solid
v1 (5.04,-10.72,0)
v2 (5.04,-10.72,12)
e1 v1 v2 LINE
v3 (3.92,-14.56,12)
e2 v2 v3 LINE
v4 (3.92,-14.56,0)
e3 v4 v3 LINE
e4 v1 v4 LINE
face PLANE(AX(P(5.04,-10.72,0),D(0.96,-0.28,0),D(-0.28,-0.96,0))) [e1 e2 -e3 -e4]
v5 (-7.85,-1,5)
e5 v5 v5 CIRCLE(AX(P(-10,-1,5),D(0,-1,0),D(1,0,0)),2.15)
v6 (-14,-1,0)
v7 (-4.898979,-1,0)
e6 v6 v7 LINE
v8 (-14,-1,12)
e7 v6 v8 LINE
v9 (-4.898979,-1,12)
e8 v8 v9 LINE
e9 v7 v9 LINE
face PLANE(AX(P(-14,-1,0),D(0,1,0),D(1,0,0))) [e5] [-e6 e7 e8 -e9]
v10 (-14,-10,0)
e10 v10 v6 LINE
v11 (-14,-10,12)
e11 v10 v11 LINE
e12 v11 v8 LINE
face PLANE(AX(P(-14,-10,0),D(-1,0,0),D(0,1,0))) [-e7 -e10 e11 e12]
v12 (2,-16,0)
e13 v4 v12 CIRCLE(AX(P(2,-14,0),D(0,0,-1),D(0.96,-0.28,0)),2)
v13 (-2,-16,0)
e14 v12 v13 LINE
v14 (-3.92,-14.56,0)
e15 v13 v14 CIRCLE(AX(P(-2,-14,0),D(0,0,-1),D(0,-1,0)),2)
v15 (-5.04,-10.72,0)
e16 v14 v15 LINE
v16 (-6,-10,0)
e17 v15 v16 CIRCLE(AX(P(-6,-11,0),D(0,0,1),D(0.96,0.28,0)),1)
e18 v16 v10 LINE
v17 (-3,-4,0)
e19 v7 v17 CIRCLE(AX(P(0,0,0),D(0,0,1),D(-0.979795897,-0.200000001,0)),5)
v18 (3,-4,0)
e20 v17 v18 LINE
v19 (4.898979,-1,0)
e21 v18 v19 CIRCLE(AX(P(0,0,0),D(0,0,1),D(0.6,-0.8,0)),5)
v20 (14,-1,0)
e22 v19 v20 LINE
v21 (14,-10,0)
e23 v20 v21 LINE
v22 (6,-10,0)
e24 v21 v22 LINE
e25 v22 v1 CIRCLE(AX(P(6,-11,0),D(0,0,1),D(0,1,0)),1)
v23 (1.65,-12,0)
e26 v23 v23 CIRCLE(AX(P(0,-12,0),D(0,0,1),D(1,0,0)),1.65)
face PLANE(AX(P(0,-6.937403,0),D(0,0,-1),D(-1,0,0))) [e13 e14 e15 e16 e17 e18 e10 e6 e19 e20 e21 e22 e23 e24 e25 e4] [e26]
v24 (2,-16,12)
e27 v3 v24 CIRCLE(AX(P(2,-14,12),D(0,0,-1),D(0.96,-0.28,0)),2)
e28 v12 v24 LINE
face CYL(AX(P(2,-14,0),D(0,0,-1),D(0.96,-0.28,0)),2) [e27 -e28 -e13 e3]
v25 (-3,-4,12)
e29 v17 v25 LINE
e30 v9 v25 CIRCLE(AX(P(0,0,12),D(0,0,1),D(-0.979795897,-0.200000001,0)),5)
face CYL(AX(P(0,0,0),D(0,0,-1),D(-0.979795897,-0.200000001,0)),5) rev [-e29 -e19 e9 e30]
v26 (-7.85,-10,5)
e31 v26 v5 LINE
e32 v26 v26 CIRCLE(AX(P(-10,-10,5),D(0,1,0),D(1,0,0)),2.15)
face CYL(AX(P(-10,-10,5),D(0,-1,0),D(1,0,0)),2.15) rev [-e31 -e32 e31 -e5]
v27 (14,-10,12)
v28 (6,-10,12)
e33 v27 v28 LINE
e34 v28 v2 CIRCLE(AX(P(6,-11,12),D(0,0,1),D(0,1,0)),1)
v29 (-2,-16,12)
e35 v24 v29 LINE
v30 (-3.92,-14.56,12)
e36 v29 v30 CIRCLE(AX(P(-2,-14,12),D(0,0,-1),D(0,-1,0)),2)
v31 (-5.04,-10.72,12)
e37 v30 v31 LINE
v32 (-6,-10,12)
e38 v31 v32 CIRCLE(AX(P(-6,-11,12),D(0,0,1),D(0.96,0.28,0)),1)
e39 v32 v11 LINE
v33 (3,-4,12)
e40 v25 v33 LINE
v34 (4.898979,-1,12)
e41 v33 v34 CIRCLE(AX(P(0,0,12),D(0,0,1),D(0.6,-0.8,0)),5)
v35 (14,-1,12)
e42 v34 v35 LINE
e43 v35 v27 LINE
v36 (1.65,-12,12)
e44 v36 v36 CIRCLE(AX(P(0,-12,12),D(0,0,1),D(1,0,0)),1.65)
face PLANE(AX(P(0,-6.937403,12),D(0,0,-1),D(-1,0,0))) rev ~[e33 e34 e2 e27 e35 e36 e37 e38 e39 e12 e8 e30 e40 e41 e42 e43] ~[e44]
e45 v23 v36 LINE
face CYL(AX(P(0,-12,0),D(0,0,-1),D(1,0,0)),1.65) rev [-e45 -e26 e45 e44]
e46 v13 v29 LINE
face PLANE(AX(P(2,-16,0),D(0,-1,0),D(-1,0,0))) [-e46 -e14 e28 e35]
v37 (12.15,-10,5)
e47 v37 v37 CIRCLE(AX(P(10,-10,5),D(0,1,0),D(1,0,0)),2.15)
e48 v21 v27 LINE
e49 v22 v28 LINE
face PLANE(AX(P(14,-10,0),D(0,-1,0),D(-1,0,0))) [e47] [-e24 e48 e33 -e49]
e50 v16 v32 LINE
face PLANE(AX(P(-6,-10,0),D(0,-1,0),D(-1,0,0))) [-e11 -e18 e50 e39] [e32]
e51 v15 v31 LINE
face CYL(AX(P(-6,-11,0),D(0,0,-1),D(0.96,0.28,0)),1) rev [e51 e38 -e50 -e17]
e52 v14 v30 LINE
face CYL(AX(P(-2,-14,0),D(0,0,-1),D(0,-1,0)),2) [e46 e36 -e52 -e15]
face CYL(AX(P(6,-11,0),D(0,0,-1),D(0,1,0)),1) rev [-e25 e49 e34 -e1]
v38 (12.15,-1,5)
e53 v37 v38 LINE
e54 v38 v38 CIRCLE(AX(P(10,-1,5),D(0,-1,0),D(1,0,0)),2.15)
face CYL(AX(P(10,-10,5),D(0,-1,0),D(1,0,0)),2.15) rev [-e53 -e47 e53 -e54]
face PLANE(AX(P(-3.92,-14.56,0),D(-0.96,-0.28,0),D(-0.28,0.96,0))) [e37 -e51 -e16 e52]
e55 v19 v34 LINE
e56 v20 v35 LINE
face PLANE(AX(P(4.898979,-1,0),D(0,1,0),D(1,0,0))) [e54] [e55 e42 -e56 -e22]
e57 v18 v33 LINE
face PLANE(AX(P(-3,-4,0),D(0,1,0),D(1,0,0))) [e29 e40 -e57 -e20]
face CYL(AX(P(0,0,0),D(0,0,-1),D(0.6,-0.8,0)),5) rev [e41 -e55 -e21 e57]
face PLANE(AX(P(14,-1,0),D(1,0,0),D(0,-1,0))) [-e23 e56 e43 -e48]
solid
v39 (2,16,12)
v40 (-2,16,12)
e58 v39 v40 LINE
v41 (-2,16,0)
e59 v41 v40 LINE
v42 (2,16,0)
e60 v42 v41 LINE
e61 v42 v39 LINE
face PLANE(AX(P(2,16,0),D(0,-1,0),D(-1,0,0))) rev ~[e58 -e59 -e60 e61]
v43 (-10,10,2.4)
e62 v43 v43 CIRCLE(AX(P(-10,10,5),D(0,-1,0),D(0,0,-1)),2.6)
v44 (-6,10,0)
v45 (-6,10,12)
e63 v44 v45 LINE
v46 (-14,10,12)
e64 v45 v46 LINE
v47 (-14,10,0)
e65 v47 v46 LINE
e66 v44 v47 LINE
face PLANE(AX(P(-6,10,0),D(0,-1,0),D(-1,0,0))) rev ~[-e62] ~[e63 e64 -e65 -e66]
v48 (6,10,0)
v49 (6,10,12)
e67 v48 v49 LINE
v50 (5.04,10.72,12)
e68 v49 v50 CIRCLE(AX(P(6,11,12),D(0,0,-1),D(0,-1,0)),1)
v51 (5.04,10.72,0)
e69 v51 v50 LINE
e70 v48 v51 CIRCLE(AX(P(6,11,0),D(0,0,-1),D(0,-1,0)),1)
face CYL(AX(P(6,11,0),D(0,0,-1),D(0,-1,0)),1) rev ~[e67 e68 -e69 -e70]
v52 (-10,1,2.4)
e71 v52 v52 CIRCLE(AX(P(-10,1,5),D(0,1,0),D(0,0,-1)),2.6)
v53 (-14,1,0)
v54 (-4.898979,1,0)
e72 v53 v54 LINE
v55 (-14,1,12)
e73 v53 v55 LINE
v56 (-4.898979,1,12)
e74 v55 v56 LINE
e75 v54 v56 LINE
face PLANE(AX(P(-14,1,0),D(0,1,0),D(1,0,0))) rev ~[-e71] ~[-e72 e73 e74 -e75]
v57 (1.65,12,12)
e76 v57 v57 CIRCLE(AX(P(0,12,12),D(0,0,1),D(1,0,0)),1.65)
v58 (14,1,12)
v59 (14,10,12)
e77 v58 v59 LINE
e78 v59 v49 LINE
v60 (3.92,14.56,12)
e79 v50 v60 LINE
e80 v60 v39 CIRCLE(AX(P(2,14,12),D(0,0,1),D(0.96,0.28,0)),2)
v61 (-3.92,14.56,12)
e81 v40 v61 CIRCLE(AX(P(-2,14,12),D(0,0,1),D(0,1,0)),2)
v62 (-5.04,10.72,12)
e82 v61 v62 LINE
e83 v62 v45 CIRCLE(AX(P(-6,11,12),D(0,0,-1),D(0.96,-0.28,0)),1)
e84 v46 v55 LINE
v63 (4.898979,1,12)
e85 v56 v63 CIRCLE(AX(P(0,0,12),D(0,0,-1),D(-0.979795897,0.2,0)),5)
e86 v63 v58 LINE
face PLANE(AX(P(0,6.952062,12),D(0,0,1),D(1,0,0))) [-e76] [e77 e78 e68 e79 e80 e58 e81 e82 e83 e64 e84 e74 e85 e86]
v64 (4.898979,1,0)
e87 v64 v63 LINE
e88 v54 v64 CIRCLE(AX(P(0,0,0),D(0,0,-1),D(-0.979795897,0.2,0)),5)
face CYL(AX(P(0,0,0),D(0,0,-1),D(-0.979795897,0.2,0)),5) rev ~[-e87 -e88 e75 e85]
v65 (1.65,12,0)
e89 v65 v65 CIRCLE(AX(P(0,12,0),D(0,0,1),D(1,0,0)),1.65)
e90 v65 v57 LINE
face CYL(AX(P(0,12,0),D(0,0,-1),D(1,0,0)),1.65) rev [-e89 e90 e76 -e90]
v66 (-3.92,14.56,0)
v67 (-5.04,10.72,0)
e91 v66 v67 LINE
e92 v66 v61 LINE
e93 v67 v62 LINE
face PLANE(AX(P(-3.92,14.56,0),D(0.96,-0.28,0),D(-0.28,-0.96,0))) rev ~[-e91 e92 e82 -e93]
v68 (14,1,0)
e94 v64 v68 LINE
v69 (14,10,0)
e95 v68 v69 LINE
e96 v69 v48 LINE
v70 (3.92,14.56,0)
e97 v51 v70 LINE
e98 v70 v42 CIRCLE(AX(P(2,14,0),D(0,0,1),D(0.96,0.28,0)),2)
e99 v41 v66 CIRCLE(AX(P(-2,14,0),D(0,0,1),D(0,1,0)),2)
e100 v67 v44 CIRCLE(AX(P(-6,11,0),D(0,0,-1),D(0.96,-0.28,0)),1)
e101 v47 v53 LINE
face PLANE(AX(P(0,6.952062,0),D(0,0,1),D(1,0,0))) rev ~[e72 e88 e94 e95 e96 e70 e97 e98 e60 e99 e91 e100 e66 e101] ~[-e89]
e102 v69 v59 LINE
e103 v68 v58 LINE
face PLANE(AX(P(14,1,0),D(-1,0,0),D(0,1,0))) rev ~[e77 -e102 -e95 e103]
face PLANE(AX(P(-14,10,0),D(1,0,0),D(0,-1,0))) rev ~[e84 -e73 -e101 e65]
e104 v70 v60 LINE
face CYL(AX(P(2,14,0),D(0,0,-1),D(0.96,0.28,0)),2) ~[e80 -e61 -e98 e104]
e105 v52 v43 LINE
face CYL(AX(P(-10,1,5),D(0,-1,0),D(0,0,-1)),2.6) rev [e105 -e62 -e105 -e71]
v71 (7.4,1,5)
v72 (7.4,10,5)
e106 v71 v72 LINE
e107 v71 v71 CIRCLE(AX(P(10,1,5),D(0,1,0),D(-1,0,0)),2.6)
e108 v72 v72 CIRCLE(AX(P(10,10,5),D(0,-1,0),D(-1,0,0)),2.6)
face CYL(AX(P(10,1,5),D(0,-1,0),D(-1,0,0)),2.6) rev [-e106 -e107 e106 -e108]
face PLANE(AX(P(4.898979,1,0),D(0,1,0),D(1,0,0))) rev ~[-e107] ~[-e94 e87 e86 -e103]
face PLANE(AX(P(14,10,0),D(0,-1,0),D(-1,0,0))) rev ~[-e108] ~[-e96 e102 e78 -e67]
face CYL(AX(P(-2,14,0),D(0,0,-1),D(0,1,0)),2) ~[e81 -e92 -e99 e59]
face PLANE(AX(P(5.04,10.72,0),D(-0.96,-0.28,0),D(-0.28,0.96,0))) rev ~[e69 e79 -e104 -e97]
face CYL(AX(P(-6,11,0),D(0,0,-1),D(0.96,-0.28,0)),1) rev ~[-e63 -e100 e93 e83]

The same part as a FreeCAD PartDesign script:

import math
import FreeCAD as App
import Part
import Sketcher

V = App.Vector

doc = App.newDocument("Part")
body = doc.addObject("PartDesign::Body", "Body")

# Sketch on XY plane
sketch1 = body.newObject("Sketcher::SketchObject", "Sketch")
sketch1.AttachmentSupport = (doc.getObject("XY_Plane"), [""])
sketch1.MapMode = "FlatFace"
sketch1.addGeometry([
    Part.LineSegment(V(3, -4, 0), V(-3, -4, 0)),  # 0
    Part.ArcOfCircle(Part.Circle(V(0, 0, 0), V(0, 0, 1), 5), math.radians(-168), math.radians(-127)),  # 1
    Part.LineSegment(V(-4.9, -1, 0), V(-14, -1, 0)),  # 2
    Part.LineSegment(V(-14, -1, 0), V(-14, -10, 0)),  # 3
    Part.LineSegment(V(-14, -10, 0), V(-6, -10, 0)),  # 4
    Part.ArcOfCircle(Part.Circle(V(-6, -11, 0), V(0, 0, 1), 1), math.radians(16), math.radians(90)),  # 5
    Part.LineSegment(V(-5, -10.7, 0), V(-3.9, -14.6, 0)),  # 6
    Part.ArcOfCircle(Part.Circle(V(-2, -14, 0), V(0, 0, 1), 2), math.radians(-164), math.radians(-90)),  # 7
    Part.LineSegment(V(-2, -16, 0), V(2, -16, 0)),  # 8
    Part.ArcOfCircle(Part.Circle(V(2, -14, 0), V(0, 0, 1), 2), math.radians(-90), math.radians(-16)),  # 9
    Part.LineSegment(V(3.9, -14.6, 0), V(5, -10.7, 0)),  # 10
    Part.ArcOfCircle(Part.Circle(V(6, -11, 0), V(0, 0, 1), 1), math.radians(90), math.radians(164)),  # 11
    Part.LineSegment(V(6, -10, 0), V(14, -10, 0)),  # 12
    Part.LineSegment(V(14, -10, 0), V(14, -1, 0)),  # 13
    Part.LineSegment(V(14, -1, 0), V(4.9, -1, 0)),  # 14
    Part.ArcOfCircle(Part.Circle(V(0, 0, 0), V(0, 0, 1), 5), math.radians(-53), math.radians(-12)),  # 15
    Part.Circle(V(0, -12, 0), V(0, 0, 1), 1.6),  # 16
], False)
sketch1.addConstraint([
    Sketcher.Constraint("Coincident", 0, 2, 1, 2),
    Sketcher.Constraint("Coincident", 1, 1, 2, 1),
    Sketcher.Constraint("Coincident", 2, 2, 3, 1),
    Sketcher.Constraint("Coincident", 3, 2, 4, 1),
    Sketcher.Constraint("Tangent", 4, 2, 5, 2),
    Sketcher.Constraint("Tangent", 5, 1, 6, 1),
    Sketcher.Constraint("Tangent", 6, 2, 7, 1),
    Sketcher.Constraint("Tangent", 7, 2, 8, 1),
    Sketcher.Constraint("Tangent", 8, 2, 9, 1),
    Sketcher.Constraint("Tangent", 9, 2, 10, 1),
    Sketcher.Constraint("Tangent", 10, 2, 11, 2),
    Sketcher.Constraint("Tangent", 11, 1, 12, 1),
    Sketcher.Constraint("Coincident", 12, 2, 13, 1),
    Sketcher.Constraint("Coincident", 13, 2, 14, 1),
    Sketcher.Constraint("Coincident", 14, 2, 15, 2),
    Sketcher.Constraint("Coincident", 15, 1, 0, 1),
    Sketcher.Constraint("Horizontal", 0),
    Sketcher.Constraint("Horizontal", 2),
    Sketcher.Constraint("Vertical", 3),
    Sketcher.Constraint("Horizontal", 4),
    Sketcher.Constraint("Horizontal", 8),
    Sketcher.Constraint("Horizontal", 12),
    Sketcher.Constraint("Vertical", 13),
    Sketcher.Constraint("Horizontal", 14),
    Sketcher.Constraint("Coincident", 1, 3, -1, 1),
    Sketcher.Constraint("Coincident", 15, 3, -1, 1),
    Sketcher.Constraint("Equal", 7, 9),
    Sketcher.Constraint("Equal", 5, 11),
    Sketcher.Constraint("Equal", 1, 15),
    Sketcher.Constraint("Symmetric", 5, 3, 11, 3, -2),
    Sketcher.Constraint("Symmetric", 2, 2, 13, 2, -2),
    Sketcher.Constraint("PointOnObject", 16, 3, -2),
    Sketcher.Constraint("Horizontal", 6, 2, 9, 2),
    Sketcher.Constraint("Radius", 1, 5.0),
    Sketcher.Constraint("Radius", 5, 1.0),
    Sketcher.Constraint("Radius", 7, 2.0),
    Sketcher.Constraint("Diameter", 16, 3.3),
    Sketcher.Constraint("DistanceX", 0, 2, 0, 1, 6.0),
    Sketcher.Constraint("DistanceX", 4, 1, 4, 2, 8.0),
    Sketcher.Constraint("DistanceX", 8, 1, 8, 2, 4.0),
    Sketcher.Constraint("DistanceY", 3, 2, 3, 1, 9.0),
    Sketcher.Constraint("Distance", 6, 4.0),
    Sketcher.Constraint("DistanceX", 5, 3, -1, 1, 6.0),
    Sketcher.Constraint("DistanceY", 5, 3, -1, 1, 11.0),
    Sketcher.Constraint("DistanceY", 16, 3, -1, 1, 12.0),
])
pad1 = body.newObject("PartDesign::Pad", "Pad")
pad1.Profile = sketch1
pad1.Length = 12

# Sketch on XZ plane
sketch2 = body.newObject("Sketcher::SketchObject", "Sketch001")
sketch2.AttachmentSupport = (doc.getObject("XZ_Plane"), [""])
sketch2.MapMode = "FlatFace"
sketch2.AttachmentOffset = App.Placement(V(0, 0, 10), App.Rotation())
sketch2.addGeometry([
    Part.Circle(V(10, 5, 0), V(0, 0, 1), 2.1),
    Part.Circle(V(-10, 5, 0), V(0, 0, 1), 2.1),
], False)
sketch2.addConstraint([
    Sketcher.Constraint("Equal", 0, 1),
    Sketcher.Constraint("Symmetric", 0, 3, 1, 3, -2),
    Sketcher.Constraint("Diameter", 0, 4.3),
    Sketcher.Constraint("DistanceX", -1, 1, 0, 3, 10.0),
    Sketcher.Constraint("DistanceY", -1, 1, 0, 3, 5.0),
])
pocket1 = body.newObject("PartDesign::Pocket", "Pocket")
pocket1.Profile = sketch2
pocket1.Type = "ThroughAll"
body2 = doc.addObject("PartDesign::Body", "Body001")

# Sketch on XY plane
sketch3 = body2.newObject("Sketcher::SketchObject", "Sketch002")
sketch3.AttachmentSupport = (doc.getObject("XY_Plane001"), [""])
sketch3.MapMode = "FlatFace"
sketch3.addGeometry([
    Part.LineSegment(V(-3.9, 14.6, 0), V(-5, 10.7, 0)),  # 0
    Part.ArcOfCircle(Part.Circle(V(-6, 11, 0), V(0, 0, 1), 1), math.radians(-90), math.radians(-16)),  # 1
    Part.LineSegment(V(-6, 10, 0), V(-14, 10, 0)),  # 2
    Part.LineSegment(V(-14, 10, 0), V(-14, 1, 0)),  # 3
    Part.LineSegment(V(-14, 1, 0), V(-4.9, 1, 0)),  # 4
    Part.ArcOfCircle(Part.Circle(V(0, 0, 0), V(0, 0, 1), 5), math.radians(12), math.radians(168)),  # 5
    Part.LineSegment(V(4.9, 1, 0), V(14, 1, 0)),  # 6
    Part.LineSegment(V(14, 1, 0), V(14, 10, 0)),  # 7
    Part.LineSegment(V(14, 10, 0), V(6, 10, 0)),  # 8
    Part.ArcOfCircle(Part.Circle(V(6, 11, 0), V(0, 0, 1), 1), math.radians(-164), math.radians(-90)),  # 9
    Part.LineSegment(V(5, 10.7, 0), V(3.9, 14.6, 0)),  # 10
    Part.ArcOfCircle(Part.Circle(V(2, 14, 0), V(0, 0, 1), 2), math.radians(16), math.radians(90)),  # 11
    Part.LineSegment(V(2, 16, 0), V(-2, 16, 0)),  # 12
    Part.ArcOfCircle(Part.Circle(V(-2, 14, 0), V(0, 0, 1), 2), math.radians(90), math.radians(164)),  # 13
    Part.Circle(V(0, 12, 0), V(0, 0, 1), 1.6),  # 14
], False)
sketch3.addConstraint([
    Sketcher.Constraint("Tangent", 0, 2, 1, 2),
    Sketcher.Constraint("Tangent", 1, 1, 2, 1),
    Sketcher.Constraint("Coincident", 2, 2, 3, 1),
    Sketcher.Constraint("Coincident", 3, 2, 4, 1),
    Sketcher.Constraint("Coincident", 4, 2, 5, 2),
    Sketcher.Constraint("Coincident", 5, 1, 6, 1),
    Sketcher.Constraint("Coincident", 6, 2, 7, 1),
    Sketcher.Constraint("Coincident", 7, 2, 8, 1),
    Sketcher.Constraint("Tangent", 8, 2, 9, 2),
    Sketcher.Constraint("Tangent", 9, 1, 10, 1),
    Sketcher.Constraint("Tangent", 10, 2, 11, 1),
    Sketcher.Constraint("Tangent", 11, 2, 12, 1),
    Sketcher.Constraint("Tangent", 12, 2, 13, 1),
    Sketcher.Constraint("Tangent", 13, 2, 0, 1),
    Sketcher.Constraint("Horizontal", 2),
    Sketcher.Constraint("Vertical", 3),
    Sketcher.Constraint("Horizontal", 4),
    Sketcher.Constraint("Horizontal", 6),
    Sketcher.Constraint("Vertical", 7),
    Sketcher.Constraint("Horizontal", 8),
    Sketcher.Constraint("Horizontal", 12),
    Sketcher.Constraint("Coincident", 5, 3, -1, 1),
    Sketcher.Constraint("Equal", 1, 9),
    Sketcher.Constraint("Equal", 11, 13),
    Sketcher.Constraint("Symmetric", 1, 3, 9, 3, -2),
    Sketcher.Constraint("Symmetric", 3, 2, 6, 2, -2),
    Sketcher.Constraint("PointOnObject", 14, 3, -2),
    Sketcher.Constraint("Horizontal", 0, 2, 9, 1),
    Sketcher.Constraint("Radius", 1, 1.0),
    Sketcher.Constraint("Radius", 5, 5.0),
    Sketcher.Constraint("Radius", 11, 2.0),
    Sketcher.Constraint("Diameter", 14, 3.3),
    Sketcher.Constraint("DistanceX", 2, 2, 2, 1, 8.0),
    Sketcher.Constraint("DistanceX", 12, 2, 12, 1, 4.0),
    Sketcher.Constraint("DistanceY", 3, 2, 3, 1, 9.0),
    Sketcher.Constraint("Distance", 0, 4.0),
    Sketcher.Constraint("DistanceX", 1, 3, -1, 1, 6.0),
    Sketcher.Constraint("DistanceY", -1, 1, 1, 3, 11.0),
    Sketcher.Constraint("DistanceY", -1, 1, 14, 3, 12.0),
])
pad2 = body2.newObject("PartDesign::Pad", "Pad001")
pad2.Profile = sketch3
pad2.Length = 12

# Sketch on XZ plane
sketch4 = body2.newObject("Sketcher::SketchObject", "Sketch003")
sketch4.AttachmentSupport = (doc.getObject("XZ_Plane001"), [""])
sketch4.MapMode = "FlatFace"
sketch4.AttachmentOffset = App.Placement(V(0, 0, -10), App.Rotation())
sketch4.addGeometry([
    Part.Circle(V(10, 5, 0), V(0, 0, 1), 2.6),
    Part.Circle(V(-10, 5, 0), V(0, 0, 1), 2.6),
], False)
sketch4.addConstraint([
    Sketcher.Constraint("Equal", 0, 1),
    Sketcher.Constraint("Symmetric", 0, 3, 1, 3, -2),
    Sketcher.Constraint("Diameter", 0, 5.2),
    Sketcher.Constraint("DistanceX", -1, 1, 0, 3, 10.0),
    Sketcher.Constraint("DistanceY", -1, 1, 0, 3, 5.0),
])
pocket2 = body2.newObject("PartDesign::Pocket", "Pocket001")
pocket2.Profile = sketch4
pocket2.Type = "ThroughAll"
pocket2.Midplane = True

doc.recompute()
